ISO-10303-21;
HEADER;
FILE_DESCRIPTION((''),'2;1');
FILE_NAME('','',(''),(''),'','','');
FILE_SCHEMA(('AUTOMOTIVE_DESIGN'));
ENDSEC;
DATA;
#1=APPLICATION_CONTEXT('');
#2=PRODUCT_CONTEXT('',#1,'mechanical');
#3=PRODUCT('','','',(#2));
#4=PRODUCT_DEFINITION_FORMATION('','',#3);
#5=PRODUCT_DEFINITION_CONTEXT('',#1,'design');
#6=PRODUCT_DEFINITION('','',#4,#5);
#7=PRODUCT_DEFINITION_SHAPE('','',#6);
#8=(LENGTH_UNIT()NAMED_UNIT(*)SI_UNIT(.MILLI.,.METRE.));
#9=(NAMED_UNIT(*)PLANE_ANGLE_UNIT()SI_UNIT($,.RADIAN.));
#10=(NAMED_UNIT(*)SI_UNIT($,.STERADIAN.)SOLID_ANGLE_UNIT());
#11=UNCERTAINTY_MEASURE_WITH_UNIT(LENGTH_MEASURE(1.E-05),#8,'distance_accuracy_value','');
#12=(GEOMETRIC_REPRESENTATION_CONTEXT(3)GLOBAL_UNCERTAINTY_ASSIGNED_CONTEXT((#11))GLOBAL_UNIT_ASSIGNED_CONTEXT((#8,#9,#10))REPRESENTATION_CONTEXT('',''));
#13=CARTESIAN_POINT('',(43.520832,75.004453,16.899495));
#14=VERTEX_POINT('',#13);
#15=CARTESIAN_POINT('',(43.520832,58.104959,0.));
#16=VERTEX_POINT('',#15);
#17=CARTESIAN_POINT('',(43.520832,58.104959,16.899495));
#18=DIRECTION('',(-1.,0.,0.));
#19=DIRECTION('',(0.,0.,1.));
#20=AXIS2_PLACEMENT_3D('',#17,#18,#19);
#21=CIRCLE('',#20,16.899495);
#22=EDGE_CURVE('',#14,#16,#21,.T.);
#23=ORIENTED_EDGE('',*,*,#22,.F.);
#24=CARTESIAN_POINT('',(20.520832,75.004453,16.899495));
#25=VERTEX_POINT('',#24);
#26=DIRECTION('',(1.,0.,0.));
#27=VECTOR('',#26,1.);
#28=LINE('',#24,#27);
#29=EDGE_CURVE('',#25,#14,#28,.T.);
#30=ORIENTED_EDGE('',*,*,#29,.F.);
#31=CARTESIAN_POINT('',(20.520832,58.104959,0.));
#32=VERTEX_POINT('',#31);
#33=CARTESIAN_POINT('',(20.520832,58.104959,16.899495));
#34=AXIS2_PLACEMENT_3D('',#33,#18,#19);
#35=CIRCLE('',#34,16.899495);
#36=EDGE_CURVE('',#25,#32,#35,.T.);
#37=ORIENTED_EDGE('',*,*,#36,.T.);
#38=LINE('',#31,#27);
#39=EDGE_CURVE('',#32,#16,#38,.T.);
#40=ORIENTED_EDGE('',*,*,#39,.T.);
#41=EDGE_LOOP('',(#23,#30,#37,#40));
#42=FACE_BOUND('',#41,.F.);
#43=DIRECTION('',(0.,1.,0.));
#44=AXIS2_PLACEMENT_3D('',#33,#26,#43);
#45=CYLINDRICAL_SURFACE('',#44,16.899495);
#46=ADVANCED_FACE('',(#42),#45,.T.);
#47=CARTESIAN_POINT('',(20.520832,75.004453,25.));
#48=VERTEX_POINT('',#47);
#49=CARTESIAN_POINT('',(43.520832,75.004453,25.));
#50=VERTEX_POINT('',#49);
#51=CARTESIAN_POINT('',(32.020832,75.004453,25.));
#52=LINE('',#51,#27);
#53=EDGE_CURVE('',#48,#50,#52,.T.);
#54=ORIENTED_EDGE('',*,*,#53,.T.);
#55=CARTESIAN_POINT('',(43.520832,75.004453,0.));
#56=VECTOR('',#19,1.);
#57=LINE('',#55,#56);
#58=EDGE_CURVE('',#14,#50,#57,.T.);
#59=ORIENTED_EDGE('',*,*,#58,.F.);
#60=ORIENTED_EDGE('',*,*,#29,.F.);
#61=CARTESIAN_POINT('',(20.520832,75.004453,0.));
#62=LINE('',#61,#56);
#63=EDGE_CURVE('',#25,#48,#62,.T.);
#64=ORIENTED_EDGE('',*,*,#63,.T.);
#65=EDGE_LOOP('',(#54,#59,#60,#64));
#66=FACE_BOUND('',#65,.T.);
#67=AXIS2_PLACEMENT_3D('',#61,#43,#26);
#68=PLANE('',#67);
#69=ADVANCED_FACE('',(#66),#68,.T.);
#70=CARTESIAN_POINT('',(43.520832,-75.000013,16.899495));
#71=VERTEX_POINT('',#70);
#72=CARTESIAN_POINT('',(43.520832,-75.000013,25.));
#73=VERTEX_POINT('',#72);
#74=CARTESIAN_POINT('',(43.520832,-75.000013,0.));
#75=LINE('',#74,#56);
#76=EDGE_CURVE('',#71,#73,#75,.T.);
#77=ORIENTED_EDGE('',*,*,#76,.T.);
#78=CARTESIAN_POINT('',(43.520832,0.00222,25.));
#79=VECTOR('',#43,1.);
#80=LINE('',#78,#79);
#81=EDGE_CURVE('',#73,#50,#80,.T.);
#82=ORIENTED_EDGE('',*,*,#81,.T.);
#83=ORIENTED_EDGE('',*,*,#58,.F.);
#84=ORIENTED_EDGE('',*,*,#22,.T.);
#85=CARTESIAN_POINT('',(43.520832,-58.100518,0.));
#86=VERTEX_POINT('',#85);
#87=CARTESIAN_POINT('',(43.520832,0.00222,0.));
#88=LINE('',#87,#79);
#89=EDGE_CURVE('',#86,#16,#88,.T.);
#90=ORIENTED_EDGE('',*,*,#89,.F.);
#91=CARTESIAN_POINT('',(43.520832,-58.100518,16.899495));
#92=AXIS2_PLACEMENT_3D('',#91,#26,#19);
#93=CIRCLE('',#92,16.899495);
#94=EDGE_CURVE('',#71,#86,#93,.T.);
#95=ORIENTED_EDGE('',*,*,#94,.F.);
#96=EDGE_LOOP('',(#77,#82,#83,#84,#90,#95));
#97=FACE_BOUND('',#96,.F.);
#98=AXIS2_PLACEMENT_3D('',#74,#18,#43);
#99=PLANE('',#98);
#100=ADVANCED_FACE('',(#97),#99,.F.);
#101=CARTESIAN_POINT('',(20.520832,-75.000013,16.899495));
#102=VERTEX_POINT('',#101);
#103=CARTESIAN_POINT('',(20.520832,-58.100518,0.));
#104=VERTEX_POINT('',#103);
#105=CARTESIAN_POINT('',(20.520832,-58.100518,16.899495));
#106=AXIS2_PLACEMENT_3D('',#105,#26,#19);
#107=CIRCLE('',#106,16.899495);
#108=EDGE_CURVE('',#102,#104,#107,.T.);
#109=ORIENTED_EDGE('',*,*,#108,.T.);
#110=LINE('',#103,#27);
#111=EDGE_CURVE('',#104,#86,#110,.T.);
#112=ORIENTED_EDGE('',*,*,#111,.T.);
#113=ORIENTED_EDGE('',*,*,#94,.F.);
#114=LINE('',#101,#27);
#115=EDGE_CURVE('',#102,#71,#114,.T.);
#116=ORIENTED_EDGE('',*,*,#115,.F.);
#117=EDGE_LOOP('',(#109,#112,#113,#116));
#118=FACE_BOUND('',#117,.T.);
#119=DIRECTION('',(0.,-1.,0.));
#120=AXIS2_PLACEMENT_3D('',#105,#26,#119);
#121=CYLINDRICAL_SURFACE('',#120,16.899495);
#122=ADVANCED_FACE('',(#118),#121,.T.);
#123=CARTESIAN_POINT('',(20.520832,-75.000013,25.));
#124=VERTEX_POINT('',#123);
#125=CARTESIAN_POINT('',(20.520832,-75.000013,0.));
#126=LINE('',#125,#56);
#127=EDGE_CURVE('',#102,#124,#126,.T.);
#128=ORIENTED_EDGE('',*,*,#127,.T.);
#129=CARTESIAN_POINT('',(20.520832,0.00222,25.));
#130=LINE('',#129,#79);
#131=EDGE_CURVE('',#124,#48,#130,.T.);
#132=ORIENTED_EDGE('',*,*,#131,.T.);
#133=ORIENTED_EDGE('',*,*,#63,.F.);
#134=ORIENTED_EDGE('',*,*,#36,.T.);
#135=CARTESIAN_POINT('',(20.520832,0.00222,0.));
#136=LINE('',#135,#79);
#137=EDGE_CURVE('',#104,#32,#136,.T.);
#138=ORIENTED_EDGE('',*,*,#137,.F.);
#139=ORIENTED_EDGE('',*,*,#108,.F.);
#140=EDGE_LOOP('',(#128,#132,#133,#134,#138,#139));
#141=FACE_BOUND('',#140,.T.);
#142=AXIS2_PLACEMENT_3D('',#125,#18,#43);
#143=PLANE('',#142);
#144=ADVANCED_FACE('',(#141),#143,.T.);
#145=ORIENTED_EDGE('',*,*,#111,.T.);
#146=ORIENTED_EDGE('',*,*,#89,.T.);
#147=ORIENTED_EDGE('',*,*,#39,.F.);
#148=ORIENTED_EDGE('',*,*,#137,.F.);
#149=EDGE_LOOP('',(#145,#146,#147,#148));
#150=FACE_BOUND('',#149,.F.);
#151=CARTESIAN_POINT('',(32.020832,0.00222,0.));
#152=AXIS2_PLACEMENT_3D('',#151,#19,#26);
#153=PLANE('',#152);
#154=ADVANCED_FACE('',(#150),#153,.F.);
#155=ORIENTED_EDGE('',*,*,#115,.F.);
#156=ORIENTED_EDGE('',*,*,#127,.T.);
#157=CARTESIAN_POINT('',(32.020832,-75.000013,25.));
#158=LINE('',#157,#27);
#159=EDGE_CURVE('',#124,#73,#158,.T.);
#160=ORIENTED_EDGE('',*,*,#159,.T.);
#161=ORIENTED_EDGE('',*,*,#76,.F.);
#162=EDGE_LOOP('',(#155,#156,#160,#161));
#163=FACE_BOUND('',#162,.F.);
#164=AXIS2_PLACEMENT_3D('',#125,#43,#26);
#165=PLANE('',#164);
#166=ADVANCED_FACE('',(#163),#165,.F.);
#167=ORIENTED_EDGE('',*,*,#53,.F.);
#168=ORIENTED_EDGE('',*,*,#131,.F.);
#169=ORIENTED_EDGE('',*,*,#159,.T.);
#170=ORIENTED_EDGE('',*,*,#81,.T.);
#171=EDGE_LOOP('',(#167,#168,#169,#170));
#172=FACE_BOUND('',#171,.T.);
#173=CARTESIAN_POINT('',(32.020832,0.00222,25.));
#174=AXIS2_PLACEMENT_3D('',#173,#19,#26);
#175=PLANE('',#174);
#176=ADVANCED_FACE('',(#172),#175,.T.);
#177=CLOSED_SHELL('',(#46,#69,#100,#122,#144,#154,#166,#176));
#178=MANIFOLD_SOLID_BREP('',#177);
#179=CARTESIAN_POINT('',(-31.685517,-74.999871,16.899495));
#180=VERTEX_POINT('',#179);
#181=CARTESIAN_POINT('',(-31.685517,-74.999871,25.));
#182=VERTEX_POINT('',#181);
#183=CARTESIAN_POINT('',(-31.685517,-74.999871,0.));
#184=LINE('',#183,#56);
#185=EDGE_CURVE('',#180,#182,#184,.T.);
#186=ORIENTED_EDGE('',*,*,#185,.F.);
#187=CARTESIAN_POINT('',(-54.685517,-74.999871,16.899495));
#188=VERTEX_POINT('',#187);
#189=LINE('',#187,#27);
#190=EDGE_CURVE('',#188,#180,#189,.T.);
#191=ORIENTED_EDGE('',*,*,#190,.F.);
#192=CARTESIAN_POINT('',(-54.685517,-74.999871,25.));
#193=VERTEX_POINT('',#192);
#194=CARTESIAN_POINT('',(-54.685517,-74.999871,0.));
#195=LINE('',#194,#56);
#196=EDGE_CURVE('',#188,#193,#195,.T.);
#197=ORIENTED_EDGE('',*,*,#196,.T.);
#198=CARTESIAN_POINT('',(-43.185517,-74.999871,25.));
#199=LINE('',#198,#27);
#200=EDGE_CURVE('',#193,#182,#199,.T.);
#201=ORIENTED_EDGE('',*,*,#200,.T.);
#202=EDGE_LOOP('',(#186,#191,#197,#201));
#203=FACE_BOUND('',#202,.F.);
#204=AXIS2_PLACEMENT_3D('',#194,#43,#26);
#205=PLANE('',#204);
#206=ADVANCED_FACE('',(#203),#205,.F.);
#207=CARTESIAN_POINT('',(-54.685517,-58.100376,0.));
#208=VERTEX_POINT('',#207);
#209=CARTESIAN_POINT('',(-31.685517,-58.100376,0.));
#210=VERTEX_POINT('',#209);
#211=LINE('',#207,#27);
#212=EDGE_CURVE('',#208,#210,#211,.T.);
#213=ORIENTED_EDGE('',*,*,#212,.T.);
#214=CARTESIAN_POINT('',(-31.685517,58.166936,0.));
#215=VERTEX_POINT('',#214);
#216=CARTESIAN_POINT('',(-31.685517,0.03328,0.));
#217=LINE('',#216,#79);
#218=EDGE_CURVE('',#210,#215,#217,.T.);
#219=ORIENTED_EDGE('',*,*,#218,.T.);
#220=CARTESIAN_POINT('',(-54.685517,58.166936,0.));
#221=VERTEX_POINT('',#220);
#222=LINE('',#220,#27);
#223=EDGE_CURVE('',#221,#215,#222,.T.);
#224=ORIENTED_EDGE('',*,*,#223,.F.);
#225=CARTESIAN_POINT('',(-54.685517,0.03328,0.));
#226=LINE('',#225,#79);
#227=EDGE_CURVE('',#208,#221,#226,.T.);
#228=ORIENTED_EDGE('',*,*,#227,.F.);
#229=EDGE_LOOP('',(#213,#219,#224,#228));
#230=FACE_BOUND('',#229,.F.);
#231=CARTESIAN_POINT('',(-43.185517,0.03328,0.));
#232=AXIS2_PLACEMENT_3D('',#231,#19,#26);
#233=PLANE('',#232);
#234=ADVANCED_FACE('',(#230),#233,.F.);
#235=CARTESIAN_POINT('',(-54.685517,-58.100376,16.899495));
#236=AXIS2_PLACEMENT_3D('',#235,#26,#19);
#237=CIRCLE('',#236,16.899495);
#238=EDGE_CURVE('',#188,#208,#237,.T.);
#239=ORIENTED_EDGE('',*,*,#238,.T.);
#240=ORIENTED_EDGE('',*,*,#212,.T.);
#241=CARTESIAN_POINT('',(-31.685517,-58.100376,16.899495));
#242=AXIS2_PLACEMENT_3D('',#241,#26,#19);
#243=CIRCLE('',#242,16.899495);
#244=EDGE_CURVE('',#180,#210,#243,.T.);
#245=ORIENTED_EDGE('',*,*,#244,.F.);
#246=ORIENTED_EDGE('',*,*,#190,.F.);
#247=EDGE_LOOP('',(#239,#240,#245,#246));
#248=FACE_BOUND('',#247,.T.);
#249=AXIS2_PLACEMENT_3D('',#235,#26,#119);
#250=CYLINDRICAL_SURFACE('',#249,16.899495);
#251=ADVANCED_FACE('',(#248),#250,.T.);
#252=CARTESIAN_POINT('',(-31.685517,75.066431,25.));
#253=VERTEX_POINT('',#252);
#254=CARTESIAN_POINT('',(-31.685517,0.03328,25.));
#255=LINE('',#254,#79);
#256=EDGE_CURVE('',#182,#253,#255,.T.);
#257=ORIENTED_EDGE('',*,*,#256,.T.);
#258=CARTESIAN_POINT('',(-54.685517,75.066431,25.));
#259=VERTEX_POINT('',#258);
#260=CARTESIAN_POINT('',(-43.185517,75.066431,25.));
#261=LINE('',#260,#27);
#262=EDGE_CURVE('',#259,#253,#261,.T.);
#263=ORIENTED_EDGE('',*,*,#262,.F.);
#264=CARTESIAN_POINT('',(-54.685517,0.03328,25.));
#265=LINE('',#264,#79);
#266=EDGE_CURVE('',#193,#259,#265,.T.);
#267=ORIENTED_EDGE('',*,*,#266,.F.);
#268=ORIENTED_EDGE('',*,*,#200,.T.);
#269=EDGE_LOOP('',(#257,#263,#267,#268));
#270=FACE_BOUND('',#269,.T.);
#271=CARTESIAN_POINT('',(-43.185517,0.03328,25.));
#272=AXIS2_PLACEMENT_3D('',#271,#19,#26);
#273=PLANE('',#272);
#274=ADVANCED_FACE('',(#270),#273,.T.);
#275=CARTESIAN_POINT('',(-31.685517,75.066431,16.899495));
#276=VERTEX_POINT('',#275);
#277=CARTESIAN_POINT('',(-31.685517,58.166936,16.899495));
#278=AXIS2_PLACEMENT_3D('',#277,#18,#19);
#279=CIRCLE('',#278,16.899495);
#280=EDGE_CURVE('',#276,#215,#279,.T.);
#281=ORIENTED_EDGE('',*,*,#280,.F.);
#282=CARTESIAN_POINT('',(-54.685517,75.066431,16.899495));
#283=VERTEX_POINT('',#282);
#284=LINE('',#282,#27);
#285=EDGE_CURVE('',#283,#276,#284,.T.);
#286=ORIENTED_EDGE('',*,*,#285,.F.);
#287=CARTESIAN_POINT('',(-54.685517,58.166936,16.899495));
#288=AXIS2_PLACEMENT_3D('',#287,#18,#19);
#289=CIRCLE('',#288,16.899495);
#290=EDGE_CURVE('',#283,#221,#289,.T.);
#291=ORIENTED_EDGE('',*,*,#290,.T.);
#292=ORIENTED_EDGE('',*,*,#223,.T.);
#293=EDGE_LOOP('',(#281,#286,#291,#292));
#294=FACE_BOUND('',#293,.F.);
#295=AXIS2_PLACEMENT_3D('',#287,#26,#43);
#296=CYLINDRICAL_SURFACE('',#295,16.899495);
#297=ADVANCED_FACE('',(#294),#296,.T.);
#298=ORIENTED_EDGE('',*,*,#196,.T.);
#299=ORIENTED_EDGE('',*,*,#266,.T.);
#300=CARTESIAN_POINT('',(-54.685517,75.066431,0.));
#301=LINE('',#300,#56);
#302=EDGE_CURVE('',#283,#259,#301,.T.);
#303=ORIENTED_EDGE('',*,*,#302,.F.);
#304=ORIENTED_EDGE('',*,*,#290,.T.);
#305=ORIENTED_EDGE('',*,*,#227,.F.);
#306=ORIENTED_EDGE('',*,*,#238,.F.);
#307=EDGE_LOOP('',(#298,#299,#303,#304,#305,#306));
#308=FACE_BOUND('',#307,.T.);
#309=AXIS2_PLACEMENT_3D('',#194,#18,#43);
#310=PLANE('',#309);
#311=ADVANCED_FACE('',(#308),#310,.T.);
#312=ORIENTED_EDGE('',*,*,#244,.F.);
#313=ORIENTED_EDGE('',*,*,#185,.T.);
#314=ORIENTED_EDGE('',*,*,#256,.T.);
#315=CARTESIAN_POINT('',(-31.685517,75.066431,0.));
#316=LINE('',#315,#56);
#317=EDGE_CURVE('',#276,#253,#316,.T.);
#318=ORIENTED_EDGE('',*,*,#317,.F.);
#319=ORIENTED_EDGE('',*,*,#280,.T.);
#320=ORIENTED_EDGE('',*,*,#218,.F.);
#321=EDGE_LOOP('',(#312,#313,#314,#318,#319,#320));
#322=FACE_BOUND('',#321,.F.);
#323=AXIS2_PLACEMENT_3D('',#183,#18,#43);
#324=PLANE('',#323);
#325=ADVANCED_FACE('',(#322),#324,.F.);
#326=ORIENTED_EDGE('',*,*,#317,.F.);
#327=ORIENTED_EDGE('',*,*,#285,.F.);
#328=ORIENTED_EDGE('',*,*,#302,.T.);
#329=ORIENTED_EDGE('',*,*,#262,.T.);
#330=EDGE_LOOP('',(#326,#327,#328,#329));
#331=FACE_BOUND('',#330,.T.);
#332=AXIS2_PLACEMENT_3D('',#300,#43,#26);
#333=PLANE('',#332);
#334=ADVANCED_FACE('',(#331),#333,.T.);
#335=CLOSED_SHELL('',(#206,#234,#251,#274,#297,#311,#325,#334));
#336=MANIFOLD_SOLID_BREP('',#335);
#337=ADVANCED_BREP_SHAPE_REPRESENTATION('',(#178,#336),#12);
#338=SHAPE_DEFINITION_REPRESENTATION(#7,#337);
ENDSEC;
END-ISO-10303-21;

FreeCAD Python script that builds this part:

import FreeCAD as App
import Part
import Sketcher
from FreeCAD import Vector


def edges_at(feature, points):
    """Names of the edges that pass closest to the given points."""
    edges = feature.Shape.Edges
    near = lambda p: min(range(len(edges)), key=lambda i: edges[i].distToShape(Part.Vertex(*p))[0])
    return sorted({f"Edge{near(p) + 1}" for p in points})


def add_polygon(sketch, points):
    """Adds a closed chain of lines whose ends are joined by coincident constraints."""
    first, n = sketch.GeometryCount, len(points)
    for a, b in zip(points, points[1:] + points[:1]):
        sketch.addGeometry(Part.LineSegment(App.Vector(*a, 0), App.Vector(*b, 0)), False)
    for i in range(n):
        sketch.addConstraint(Sketcher.Constraint("Coincident", first + i, 2, first + (i + 1) % n, 1))

doc = App.newDocument("Part")
params = doc.addObject("Spreadsheet::Sheet", "Params")
for row, (alias, value) in enumerate([
    ("sketch1_width", "23 mm"),
    ("pad1_length", "25 mm"),
    ("fillet_radius", "16.899495 mm"),
], start=1):
    params.set(f"A{row}", alias)
    params.set(f"B{row}", "=" + value)
    params.setAlias(f"B{row}", alias)

body = doc.addObject("PartDesign::Body", "Body")
body.AllowCompound = True

# Sketch on XY plane
sketch1 = doc.addObject("Sketcher::SketchObject", "Sketch")
body.addObject(sketch1)
sketch1.AttachmentSupport = (doc.XY_Plane, [""])
sketch1.MapMode = "FlatFace"
add_polygon(sketch1, [(-54.685517, 75.066431), (-54.685517, -74.999871), (-31.685517, -74.999871), (-31.685517, 75.066431)])  # lines 0-3
add_polygon(sketch1, [(20.520832, 75.004453), (20.520832, -75.000013), (43.520832, -75.000013), (43.520832, 75.004453)])  # lines 4-7
sketch1.addConstraint(Sketcher.Constraint("Vertical", 0))
sketch1.addConstraint(Sketcher.Constraint("Horizontal", 1))
sketch1.addConstraint(Sketcher.Constraint("Vertical", 2))
sketch1.addConstraint(Sketcher.Constraint("Horizontal", 3))
sketch1.addConstraint(Sketcher.Constraint("Vertical", 4))
sketch1.addConstraint(Sketcher.Constraint("Horizontal", 5))
sketch1.addConstraint(Sketcher.Constraint("Vertical", 6))
sketch1.addConstraint(Sketcher.Constraint("Horizontal", 7))
sketch1.addConstraint(Sketcher.Constraint("Equal", 3, 5))
sketch1.addConstraint(Sketcher.Constraint("DistanceX", 1, 1, 1, 2, 23.0))
sketch1.addConstraint(Sketcher.Constraint("DistanceY", 0, 2, 0, 1, 150.066302))
sketch1.addConstraint(Sketcher.Constraint("DistanceY", 4, 2, 4, 1, 150.004467))
sketch1.addConstraint(Sketcher.Constraint("DistanceY", 0, 2, -1, 1, 74.999871))
sketch1.addConstraint(Sketcher.Constraint("DistanceX", -1, 1, 4, 2, 20.520832))
sketch1.addConstraint(Sketcher.Constraint("DistanceX", 1, 2, 4, 2, 52.206349))
sketch1.addConstraint(Sketcher.Constraint("DistanceY", 4, 2, -1, 1, 75.000013))
sketch1.setExpression("Constraints[17]", "Params.sketch1_width")
pad1 = doc.addObject("PartDesign::Pad", "Pad")
body.addObject(pad1)
pad1.Profile = sketch1
pad1.setExpression("Length", "Params.pad1_length")
doc.recompute()

fillet = doc.addObject("PartDesign::Fillet", "Fillet")
body.addObject(fillet)
fillet.Base = (pad1, edges_at(pad1, [
    (-43.186, -75, 0),
    (32.021, -75, 0),
    (-43.186, 75.066, 0),
    (32.021, 75.004, 0),
]))
fillet.setExpression("Radius", "Params.fillet_radius")

doc.recompute()
